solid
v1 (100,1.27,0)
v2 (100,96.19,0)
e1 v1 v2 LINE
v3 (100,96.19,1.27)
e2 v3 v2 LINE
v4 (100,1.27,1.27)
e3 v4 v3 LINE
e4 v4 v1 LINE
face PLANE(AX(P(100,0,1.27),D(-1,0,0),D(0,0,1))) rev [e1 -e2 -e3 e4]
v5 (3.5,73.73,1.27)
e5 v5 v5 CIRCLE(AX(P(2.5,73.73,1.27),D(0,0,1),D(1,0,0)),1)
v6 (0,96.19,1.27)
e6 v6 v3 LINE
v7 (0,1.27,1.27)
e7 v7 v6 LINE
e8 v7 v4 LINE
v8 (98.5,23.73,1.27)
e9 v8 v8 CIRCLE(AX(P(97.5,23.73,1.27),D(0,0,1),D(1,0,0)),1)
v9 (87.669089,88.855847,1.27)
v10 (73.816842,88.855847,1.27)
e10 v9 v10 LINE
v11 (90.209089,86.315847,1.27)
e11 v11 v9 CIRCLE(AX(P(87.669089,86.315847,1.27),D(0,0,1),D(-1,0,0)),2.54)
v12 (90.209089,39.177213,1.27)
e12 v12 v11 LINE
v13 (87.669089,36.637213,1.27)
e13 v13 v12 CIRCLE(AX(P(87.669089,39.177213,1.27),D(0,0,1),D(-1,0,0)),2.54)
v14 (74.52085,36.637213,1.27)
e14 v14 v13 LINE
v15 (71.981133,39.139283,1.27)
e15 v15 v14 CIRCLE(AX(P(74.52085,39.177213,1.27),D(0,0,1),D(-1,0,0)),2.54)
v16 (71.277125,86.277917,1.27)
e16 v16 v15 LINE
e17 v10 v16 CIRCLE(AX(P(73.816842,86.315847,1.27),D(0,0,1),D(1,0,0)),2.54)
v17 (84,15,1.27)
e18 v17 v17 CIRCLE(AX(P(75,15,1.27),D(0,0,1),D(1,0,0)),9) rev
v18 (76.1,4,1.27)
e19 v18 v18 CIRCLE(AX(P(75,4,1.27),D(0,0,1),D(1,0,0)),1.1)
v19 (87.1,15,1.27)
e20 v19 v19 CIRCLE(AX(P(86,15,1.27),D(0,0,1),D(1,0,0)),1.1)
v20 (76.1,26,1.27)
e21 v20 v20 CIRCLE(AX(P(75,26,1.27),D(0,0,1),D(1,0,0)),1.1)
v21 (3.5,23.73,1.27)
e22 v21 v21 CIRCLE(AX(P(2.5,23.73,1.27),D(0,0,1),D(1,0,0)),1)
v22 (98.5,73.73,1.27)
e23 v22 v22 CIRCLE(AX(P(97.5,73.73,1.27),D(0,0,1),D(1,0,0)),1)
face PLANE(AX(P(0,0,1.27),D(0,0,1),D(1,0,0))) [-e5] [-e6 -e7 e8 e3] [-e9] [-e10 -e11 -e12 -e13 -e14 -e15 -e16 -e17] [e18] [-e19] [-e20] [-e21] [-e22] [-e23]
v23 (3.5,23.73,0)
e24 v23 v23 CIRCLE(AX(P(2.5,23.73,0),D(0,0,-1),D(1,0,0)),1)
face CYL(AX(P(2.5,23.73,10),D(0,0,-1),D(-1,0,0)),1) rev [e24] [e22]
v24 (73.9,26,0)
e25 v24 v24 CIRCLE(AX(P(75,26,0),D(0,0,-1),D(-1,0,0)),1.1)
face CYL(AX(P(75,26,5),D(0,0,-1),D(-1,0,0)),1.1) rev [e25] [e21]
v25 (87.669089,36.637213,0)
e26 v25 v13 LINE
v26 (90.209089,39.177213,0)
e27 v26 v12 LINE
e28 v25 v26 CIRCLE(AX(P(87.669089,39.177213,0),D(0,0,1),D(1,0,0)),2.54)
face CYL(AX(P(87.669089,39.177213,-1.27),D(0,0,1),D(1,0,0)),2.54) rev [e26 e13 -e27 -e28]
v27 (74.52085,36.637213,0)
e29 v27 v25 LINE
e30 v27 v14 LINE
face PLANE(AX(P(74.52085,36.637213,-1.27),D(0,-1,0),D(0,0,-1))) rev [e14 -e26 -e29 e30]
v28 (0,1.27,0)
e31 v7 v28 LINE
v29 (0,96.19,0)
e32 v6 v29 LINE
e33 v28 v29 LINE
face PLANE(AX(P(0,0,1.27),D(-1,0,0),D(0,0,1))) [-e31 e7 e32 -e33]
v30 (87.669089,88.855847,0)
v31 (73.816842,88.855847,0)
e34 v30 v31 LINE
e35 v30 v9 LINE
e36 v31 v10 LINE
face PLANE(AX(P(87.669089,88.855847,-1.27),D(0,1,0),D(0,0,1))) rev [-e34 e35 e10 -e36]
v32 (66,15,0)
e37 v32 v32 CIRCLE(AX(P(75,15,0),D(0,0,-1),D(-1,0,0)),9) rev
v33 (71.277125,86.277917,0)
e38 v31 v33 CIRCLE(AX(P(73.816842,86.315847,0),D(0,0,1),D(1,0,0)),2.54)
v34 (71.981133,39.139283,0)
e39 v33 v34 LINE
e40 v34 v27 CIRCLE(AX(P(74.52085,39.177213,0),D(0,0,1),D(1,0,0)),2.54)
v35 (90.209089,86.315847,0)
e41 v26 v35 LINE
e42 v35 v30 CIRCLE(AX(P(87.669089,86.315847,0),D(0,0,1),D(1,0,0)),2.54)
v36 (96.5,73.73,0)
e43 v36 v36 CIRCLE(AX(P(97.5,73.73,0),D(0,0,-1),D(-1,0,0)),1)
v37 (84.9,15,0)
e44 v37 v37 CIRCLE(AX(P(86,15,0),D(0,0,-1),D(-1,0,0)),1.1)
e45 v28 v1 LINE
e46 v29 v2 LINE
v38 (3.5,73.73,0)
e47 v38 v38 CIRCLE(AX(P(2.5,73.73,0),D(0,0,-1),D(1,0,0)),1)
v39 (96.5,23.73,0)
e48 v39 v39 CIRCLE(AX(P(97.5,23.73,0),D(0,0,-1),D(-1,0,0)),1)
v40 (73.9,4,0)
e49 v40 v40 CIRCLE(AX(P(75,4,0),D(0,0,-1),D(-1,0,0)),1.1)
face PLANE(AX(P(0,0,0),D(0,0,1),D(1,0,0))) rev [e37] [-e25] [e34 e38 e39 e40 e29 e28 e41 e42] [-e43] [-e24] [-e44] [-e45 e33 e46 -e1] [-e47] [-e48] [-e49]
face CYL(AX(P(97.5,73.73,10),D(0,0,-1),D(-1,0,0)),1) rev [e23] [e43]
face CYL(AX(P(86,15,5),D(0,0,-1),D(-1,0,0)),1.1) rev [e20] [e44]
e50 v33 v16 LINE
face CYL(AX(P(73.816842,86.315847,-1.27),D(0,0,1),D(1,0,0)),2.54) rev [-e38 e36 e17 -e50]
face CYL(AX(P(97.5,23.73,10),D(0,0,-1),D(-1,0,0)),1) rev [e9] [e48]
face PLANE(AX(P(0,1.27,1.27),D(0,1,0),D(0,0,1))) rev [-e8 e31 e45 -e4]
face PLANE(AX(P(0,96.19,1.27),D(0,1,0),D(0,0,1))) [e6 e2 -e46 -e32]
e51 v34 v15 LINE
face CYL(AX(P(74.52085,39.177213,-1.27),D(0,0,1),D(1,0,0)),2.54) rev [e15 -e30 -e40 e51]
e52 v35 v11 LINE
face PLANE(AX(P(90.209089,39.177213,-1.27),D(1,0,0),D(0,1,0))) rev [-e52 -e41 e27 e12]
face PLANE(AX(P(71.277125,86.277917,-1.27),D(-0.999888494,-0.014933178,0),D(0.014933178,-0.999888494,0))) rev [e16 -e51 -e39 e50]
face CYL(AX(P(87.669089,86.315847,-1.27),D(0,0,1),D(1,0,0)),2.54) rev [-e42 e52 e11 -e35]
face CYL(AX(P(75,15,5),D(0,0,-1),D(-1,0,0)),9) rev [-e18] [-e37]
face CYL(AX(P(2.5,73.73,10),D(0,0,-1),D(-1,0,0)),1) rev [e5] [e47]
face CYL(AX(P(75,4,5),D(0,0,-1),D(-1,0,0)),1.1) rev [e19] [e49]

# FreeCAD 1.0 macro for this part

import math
import FreeCAD as App
import Part
import Sketcher
from FreeCAD import Vector
Q = App.Units.Quantity


def add_polygon(sketch, points):
    """Adds a closed chain of lines whose ends are joined by coincident constraints."""
    first, n = sketch.GeometryCount, len(points)
    for a, b in zip(points, points[1:] + points[:1]):
        sketch.addGeometry(Part.LineSegment(App.Vector(*a, 0), App.Vector(*b, 0)), False)
    for i in range(n):
        sketch.addConstraint(Sketcher.Constraint("Coincident", first + i, 2, first + (i + 1) % n, 1))

doc = App.newDocument("Part")
body = doc.addObject("PartDesign::Body", "Body")

# Sketch on XY plane
sketch1 = body.newObject("Sketcher::SketchObject", "Sketch")
sketch1.AttachmentSupport = (doc.getObject("XY_Plane"), [""])
sketch1.MapMode = "FlatFace"
add_polygon(sketch1, [(0, 96), (0, 1), (100, 1), (100, 96)])  # lines 0-3
sketch1.addConstraint([
    Sketcher.Constraint("Vertical", 0),
    Sketcher.Constraint("Horizontal", 1),
    Sketcher.Constraint("Vertical", 2),
    Sketcher.Constraint("Horizontal", 3),
    Sketcher.Constraint("PointOnObject", 0, 2, -2),
    Sketcher.Constraint("DistanceX", 1, 1, 1, 2, Q("100 mm")),
    Sketcher.Constraint("DistanceY", 0, 2, 0, 1, Q("94.92 mm")),
    Sketcher.Constraint("DistanceY", -1, 1, 0, 2, Q("1.27 mm")),
])
pad1 = body.newObject("PartDesign::Pad", "Pad")
pad1.Profile = sketch1
pad1.Length = 1.27

# Sketch on XY plane
sketch2 = body.newObject("Sketcher::SketchObject", "Sketch001")
sketch2.AttachmentSupport = (doc.getObject("XY_Plane"), [""])
sketch2.MapMode = "FlatFace"
sketch2.addGeometry([
    Part.Circle(Vector(75, 15, 0), Vector(0, 0, 1), 9),
    Part.Circle(Vector(75, 26, 0), Vector(0, 0, 1), 1.1),
    Part.Circle(Vector(86, 15, 0), Vector(0, 0, 1), 1.1),
    Part.Circle(Vector(75, 4, 0), Vector(0, 0, 1), 1.1),
], False)
sketch2.addConstraint([
    Sketcher.Constraint("Equal", 1, 2),
    Sketcher.Constraint("Equal", 2, 3),
    Sketcher.Constraint("Horizontal", 0, 3, 2, 3),
    Sketcher.Constraint("Vertical", 0, 3, 1, 3),
    Sketcher.Constraint("Vertical", 1, 3, 3, 3),
    Sketcher.Constraint("Diameter", 0, Q("18 mm")),
    Sketcher.Constraint("Diameter", 1, Q("2.2 mm")),
    Sketcher.Constraint("DistanceX", -1, 1, 0, 3, Q("75 mm")),
    Sketcher.Constraint("DistanceY", -1, 1, 0, 3, Q("15 mm")),
    Sketcher.Constraint("DistanceY", -1, 1, 1, 3, Q("26 mm")),
    Sketcher.Constraint("DistanceX", -1, 1, 2, 3, Q("86 mm")),
    Sketcher.Constraint("DistanceY", -1, 1, 3, 3, Q("4 mm")),
])
pocket1 = body.newObject("PartDesign::Pocket", "Pocket")
pocket1.Profile = sketch2
pocket1.Length = 5
pocket1.Reversed = True

# Sketch on XY plane
sketch3 = body.newObject("Sketcher::SketchObject", "Sketch002")
sketch3.AttachmentSupport = (doc.getObject("XY_Plane"), [""])
sketch3.MapMode = "FlatFace"
sketch3.addGeometry([
    Part.Circle(Vector(2.5, 73.7, 0), Vector(0, 0, 1), 1),
    Part.Circle(Vector(2.5, 23.7, 0), Vector(0, 0, 1), 1),
    Part.Circle(Vector(97.5, 23.7, 0), Vector(0, 0, 1), 1),
    Part.Circle(Vector(97.5, 73.7, 0), Vector(0, 0, 1), 1),
], False)
sketch3.addConstraint([
    Sketcher.Constraint("Equal", 0, 1),
    Sketcher.Constraint("Equal", 1, 2),
    Sketcher.Constraint("Equal", 2, 3),
    Sketcher.Constraint("Horizontal", 1, 3, 2, 3),
    Sketcher.Constraint("Horizontal", 0, 3, 3, 3),
    Sketcher.Constraint("Vertical", 0, 3, 1, 3),
    Sketcher.Constraint("Vertical", 2, 3, 3, 3),
    Sketcher.Constraint("Diameter", 0, Q("2 mm")),
    Sketcher.Constraint("DistanceY", 1, 3, 0, 3, Q("50 mm")),
    Sketcher.Constraint("DistanceX", 1, 3, 2, 3, Q("95 mm")),
    Sketcher.Constraint("DistanceX", -1, 1, 0, 3, Q("2.5 mm")),
    Sketcher.Constraint("DistanceY", -1, 1, 0, 3, Q("73.73 mm")),
])
pocket2 = body.newObject("PartDesign::Pocket", "Pocket001")
pocket2.Profile = sketch3
pocket2.Length = 10
pocket2.Reversed = True

# Sketch on XY plane
sketch4 = body.newObject("Sketcher::SketchObject", "Sketch003")
sketch4.AttachmentSupport = (doc.getObject("XY_Plane"), [""])
sketch4.MapMode = "FlatFace"
sketch4.AttachmentOffset = App.Placement(Vector(0, 0, 1.27), App.Rotation())
sketch4.addGeometry([
    Part.LineSegment(Vector(87.7, 88.9, 0), Vector(73.8, 88.9, 0)),  # 0
    Part.ArcOfCircle(Part.Circle(Vector(73.8, 86.3, 0), Vector(0, 0, 1), 2.5), math.radians(90), math.radians(181)),  # 1
    Part.LineSegment(Vector(71.3, 86.3, 0), Vector(72, 39.1, 0)),  # 2
    Part.ArcOfCircle(Part.Circle(Vector(74.5, 39.2, 0), Vector(0, 0, 1), 2.5), math.radians(-179), math.radians(-90)),  # 3
    Part.LineSegment(Vector(74.5, 36.6, 0), Vector(87.7, 36.6, 0)),  # 4
    Part.ArcOfCircle(Part.Circle(Vector(87.7, 39.2, 0), Vector(0, 0, 1), 2.5), math.radians(-90), math.radians(0)),  # 5
    Part.LineSegment(Vector(90.2, 39.2, 0), Vector(90.2, 86.3, 0)),  # 6
    Part.ArcOfCircle(Part.Circle(Vector(87.7, 86.3, 0), Vector(0, 0, 1), 2.5), math.radians(0), math.radians(90)),  # 7
], False)
sketch4.addConstraint([
    Sketcher.Constraint("Tangent", 0, 2, 1, 1),
    Sketcher.Constraint("Tangent", 1, 2, 2, 1),
    Sketcher.Constraint("Tangent", 2, 2, 3, 1),
    Sketcher.Constraint("Tangent", 3, 2, 4, 1),
    Sketcher.Constraint("Tangent", 4, 2, 5, 1),
    Sketcher.Constraint("Tangent", 5, 2, 6, 1),
    Sketcher.Constraint("Tangent", 6, 2, 7, 1),
    Sketcher.Constraint("Tangent", 7, 2, 0, 1),
    Sketcher.Constraint("Horizontal", 0),
    Sketcher.Constraint("Horizontal", 4),
    Sketcher.Constraint("Vertical", 6),
    Sketcher.Constraint("Equal", 1, 3),
    Sketcher.Constraint("Equal", 3, 5),
    Sketcher.Constraint("Equal", 5, 7),
    Sketcher.Constraint("Radius", 1, Q("2.54 mm")),
    Sketcher.Constraint("DistanceX", 4, 1, 4, 2, Q("13.148239 mm")),
    Sketcher.Constraint("Distance", 2, Q("47.143891 mm")),
    Sketcher.Constraint("DistanceX", 0, 2, 0, 1, Q("13.852247 mm")),
    Sketcher.Constraint("DistanceX", -1, 1, 1, 3, Q("73.816842 mm")),
    Sketcher.Constraint("DistanceY", -1, 1, 1, 3, Q("86.315847 mm")),
])
pocket3 = body.newObject("PartDesign::Pocket", "Pocket002")
pocket3.Profile = sketch4
pocket3.Length = 2.54

doc.recompute()
